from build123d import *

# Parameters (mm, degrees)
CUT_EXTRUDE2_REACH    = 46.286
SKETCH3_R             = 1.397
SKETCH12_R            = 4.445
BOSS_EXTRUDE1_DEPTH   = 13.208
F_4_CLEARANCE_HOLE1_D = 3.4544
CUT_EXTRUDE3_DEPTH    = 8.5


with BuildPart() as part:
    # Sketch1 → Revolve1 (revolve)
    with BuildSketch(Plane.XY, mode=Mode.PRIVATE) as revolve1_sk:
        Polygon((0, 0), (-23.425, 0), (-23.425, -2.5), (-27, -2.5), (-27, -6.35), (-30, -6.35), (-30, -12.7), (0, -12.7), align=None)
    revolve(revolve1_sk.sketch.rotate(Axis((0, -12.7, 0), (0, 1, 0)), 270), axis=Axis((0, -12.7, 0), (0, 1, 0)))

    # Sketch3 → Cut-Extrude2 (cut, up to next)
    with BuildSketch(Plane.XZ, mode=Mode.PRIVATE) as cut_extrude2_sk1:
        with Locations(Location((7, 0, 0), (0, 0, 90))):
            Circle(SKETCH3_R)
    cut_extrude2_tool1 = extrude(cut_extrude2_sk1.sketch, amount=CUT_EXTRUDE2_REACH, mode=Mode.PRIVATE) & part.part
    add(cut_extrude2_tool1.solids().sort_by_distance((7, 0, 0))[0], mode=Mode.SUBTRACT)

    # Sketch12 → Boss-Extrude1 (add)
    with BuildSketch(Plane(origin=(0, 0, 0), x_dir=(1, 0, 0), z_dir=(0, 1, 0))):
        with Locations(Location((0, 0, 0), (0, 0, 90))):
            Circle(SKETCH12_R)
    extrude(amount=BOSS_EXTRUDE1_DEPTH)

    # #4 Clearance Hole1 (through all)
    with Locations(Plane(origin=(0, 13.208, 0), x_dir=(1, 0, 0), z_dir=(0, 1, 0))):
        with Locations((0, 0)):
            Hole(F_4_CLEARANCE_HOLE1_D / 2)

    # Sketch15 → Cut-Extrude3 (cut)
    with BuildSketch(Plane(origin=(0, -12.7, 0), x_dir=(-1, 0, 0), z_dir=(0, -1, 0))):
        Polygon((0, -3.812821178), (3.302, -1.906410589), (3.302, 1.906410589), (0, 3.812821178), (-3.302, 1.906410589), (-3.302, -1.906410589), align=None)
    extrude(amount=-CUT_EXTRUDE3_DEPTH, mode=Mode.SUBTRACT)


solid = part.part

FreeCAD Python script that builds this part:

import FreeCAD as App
import Part
import Sketcher
Q = App.Units.Quantity

doc = App.newDocument("Part")
body = doc.addObject("PartDesign::Body", "Body")

sketch1 = body.newObject("Sketcher::SketchObject", "Sketch")
sketch1.AttachmentSupport = (doc.getObject("XY_Plane"), [""])
sketch1.MapMode = "FlatFace"
sketch1.addGeometry([
    Part.LineSegment(App.Vector(0, 0, 0), App.Vector(-23.4, 0, 0)),
    Part.LineSegment(App.Vector(-23.4, 0, 0), App.Vector(-23.4, -2.5, 0)),
    Part.LineSegment(App.Vector(-23.4, -2.5, 0), App.Vector(-27, -2.5, 0)),
    Part.LineSegment(App.Vector(-27, -2.5, 0), App.Vector(-27, -6.3, 0)),
    Part.LineSegment(App.Vector(-27, -6.3, 0), App.Vector(-30, -6.3, 0)),
    Part.LineSegment(App.Vector(-30, -6.3, 0), App.Vector(-30, -12.7, 0)),
    Part.LineSegment(App.Vector(-30, -12.7, 0), App.Vector(0, -12.7, 0)),
    Part.LineSegment(App.Vector(0, -12.7, 0), App.Vector(0, 0, 0)),
], False)
sketch1.addConstraint([
    Sketcher.Constraint("Coincident", 0, 2, 1, 1),
    Sketcher.Constraint("Coincident", 1, 2, 2, 1),
    Sketcher.Constraint("Coincident", 2, 2, 3, 1),
    Sketcher.Constraint("Coincident", 3, 2, 4, 1),
    Sketcher.Constraint("Coincident", 4, 2, 5, 1),
    Sketcher.Constraint("Coincident", 5, 2, 6, 1),
    Sketcher.Constraint("Coincident", 6, 2, 7, 1),
    Sketcher.Constraint("Coincident", 7, 2, 0, 1),
    Sketcher.Constraint("Horizontal", 0),
    Sketcher.Constraint("Vertical", 1),
    Sketcher.Constraint("Horizontal", 2),
    Sketcher.Constraint("Vertical", 3),
    Sketcher.Constraint("Horizontal", 4),
    Sketcher.Constraint("Vertical", 5),
    Sketcher.Constraint("Horizontal", 6),
    Sketcher.Constraint("Vertical", 7),
    Sketcher.Constraint("Coincident", 7, 2, -1, 1),
    Sketcher.Constraint("DistanceY", 7, 1, 7, 2, Q("0.5 in")),
    Sketcher.Constraint("DistanceY", 5, 2, 5, 1, Q("0.25 in")),
    Sketcher.Constraint("DistanceX", 0, 2, 0, 1, Q("23.425 mm")),
    Sketcher.Constraint("DistanceX", 2, 2, 2, 1, Q("3.575 mm")),
    Sketcher.Constraint("DistanceX", 4, 2, 4, 1, Q("3 mm")),
    Sketcher.Constraint("DistanceY", 1, 2, 1, 1, Q("2.5 mm")),
])
revolution = body.newObject("PartDesign::Revolution", "Revolution")
revolution.Profile = sketch1
revolution.ReferenceAxis = (sketch1, ["V_Axis"])
revolution.Angle = 360

sketch2 = body.newObject("Sketcher::SketchObject", "Sketch001")
sketch2.AttachmentSupport = (doc.getObject("XZ_Plane"), [""])
sketch2.MapMode = "FlatFace"
sketch2.addGeometry(Part.Circle(App.Vector(7, 0, 0), App.Vector(0, 0, 1), 1.4), False)
sketch2.addConstraint([
    Sketcher.Constraint("PointOnObject", 0, 3, -1),
    Sketcher.Constraint("Diameter", 0, Q("0.11 in")),
    Sketcher.Constraint("DistanceX", -1, 1, 0, 3, Q("7 mm")),
])
pocket1 = body.newObject("PartDesign::Pocket", "Pocket")
pocket1.Profile = sketch2
pocket1.Type = "UpToFirst"
pocket1.Reversed = True

sketch3 = body.newObject("Sketcher::SketchObject", "Sketch002")
sketch3.AttachmentSupport = (doc.getObject("XZ_Plane"), [""])
sketch3.MapMode = "FlatFace"
sketch3.addGeometry(Part.Circle(App.Vector(0, 0, 0), App.Vector(0, 0, 1), 4.4), False)
sketch3.addConstraint([
    Sketcher.Constraint("Coincident", 0, 3, -1, 1),
    Sketcher.Constraint("Diameter", 0, Q("0.35 in")),
])
pad1 = body.newObject("PartDesign::Pad", "Pad")
pad1.Profile = sketch3
pad1.Length = Q("0.52 in")
pad1.Reversed = True

sketch4 = body.newObject("Sketcher::SketchObject", "Sketch003")
sketch4.AttachmentSupport = (doc.getObject("XZ_Plane"), [""])
sketch4.MapMode = "FlatFace"
sketch4.AttachmentOffset = App.Placement(App.Vector(0, 0, -0.52 * 25.4), App.Rotation())
sketch4.addGeometry(Part.Circle(App.Vector(0, 0, 0), App.Vector(0, 0, 1), 1.7), False)
sketch4.addConstraint([
    Sketcher.Constraint("Coincident", 0, 3, -1, 1),
    Sketcher.Constraint("Diameter", 0, Q("0.136 in")),
])
doc.recompute()
hole = body.newObject("PartDesign::Hole", "Hole")
hole.Profile = sketch4
hole.ThreadType = "None"
hole.Diameter = Q("0.136 in")
hole.DepthType = "ThroughAll"
hole.Reversed = True

sketch5 = body.newObject("Sketcher::SketchObject", "Sketch004")
sketch5.AttachmentSupport = (doc.getObject("XZ_Plane"), [""])
sketch5.MapMode = "FlatFace"
sketch5.AttachmentOffset = App.Placement(App.Vector(0, 0, 0.5 * 25.4), App.Rotation())
sketch5.addGeometry([
    Part.LineSegment(App.Vector(0, 3.8, 0), App.Vector(-3.3, 1.9, 0)),
    Part.LineSegment(App.Vector(-3.3, 1.9, 0), App.Vector(-3.3, -1.9, 0)),
    Part.LineSegment(App.Vector(-3.3, -1.9, 0), App.Vector(0, -3.8, 0)),
    Part.LineSegment(App.Vector(0, -3.8, 0), App.Vector(3.3, -1.9, 0)),
    Part.LineSegment(App.Vector(3.3, -1.9, 0), App.Vector(3.3, 1.9, 0)),
    Part.LineSegment(App.Vector(3.3, 1.9, 0), App.Vector(0, 3.8, 0)),
], False)
sketch5.addConstraint([
    Sketcher.Constraint("Coincident", 0, 2, 1, 1),
    Sketcher.Constraint("Coincident", 1, 2, 2, 1),
    Sketcher.Constraint("Coincident", 2, 2, 3, 1),
    Sketcher.Constraint("Coincident", 3, 2, 4, 1),
    Sketcher.Constraint("Coincident", 4, 2, 5, 1),
    Sketcher.Constraint("Coincident", 5, 2, 0, 1),
    Sketcher.Constraint("Vertical", 1),
    Sketcher.Constraint("Vertical", 4),
    Sketcher.Constraint("Symmetric", 0, 2, 3, 2, -1, 1),
    Sketcher.Constraint("Symmetric", 2, 2, 5, 2, -1, 1),
    Sketcher.Constraint("PointOnObject", 2, 2, -2),
    Sketcher.Constraint("Parallel", 2, 5),
    Sketcher.Constraint("Horizontal", 1, 2, 3, 2),
    Sketcher.Constraint("Angle", 0, Q("-150 deg")),
    Sketcher.Constraint("DistanceX", 0, 2, -1, 1, Q("0.13 in")),
    Sketcher.Constraint("DistanceY", 1, 2, 1, 1, Q("3.812821 mm")),
])
pocket2 = body.newObject("PartDesign::Pocket", "Pocket001")
pocket2.Profile = sketch5
pocket2.Length = 8.5

doc.recompute()
